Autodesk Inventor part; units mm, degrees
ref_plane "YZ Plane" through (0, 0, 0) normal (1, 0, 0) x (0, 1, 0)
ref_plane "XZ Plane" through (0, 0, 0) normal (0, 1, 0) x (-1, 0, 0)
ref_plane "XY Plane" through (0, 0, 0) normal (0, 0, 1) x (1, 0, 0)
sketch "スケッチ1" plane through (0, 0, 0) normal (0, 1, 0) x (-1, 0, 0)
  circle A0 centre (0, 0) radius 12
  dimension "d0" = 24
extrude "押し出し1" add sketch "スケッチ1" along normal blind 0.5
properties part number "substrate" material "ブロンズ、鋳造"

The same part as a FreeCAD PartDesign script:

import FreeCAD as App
import Part
import Sketcher

V = App.Vector
Q = App.Units.Quantity

doc = App.newDocument("Part")
params = doc.addObject("Spreadsheet::Sheet", "Params")
for row, (alias, value) in enumerate([
    ("sketch1_diameter", "24 mm"),
    ("pad1_length", "0.5 mm"),
], start=1):
    params.set(f"A{row}", alias)
    params.set(f"B{row}", "=" + value)
    params.setAlias(f"B{row}", alias)

body = doc.addObject("PartDesign::Body", "Body")

# Sketch on XZ plane
sketch1 = doc.addObject("Sketcher::SketchObject", "Sketch")
body.addObject(sketch1)
sketch1.AttachmentSupport = (doc.XZ_Plane, [""])
sketch1.MapMode = "FlatFace"
sketch1.addGeometry(Part.Circle(V(0, 0, 0), V(0, 0, 1), 12), False)
sketch1.addConstraint(Sketcher.Constraint("Coincident", 0, 3, -1, 1))
sketch1.addConstraint(Sketcher.Constraint("Diameter", 0, Q("24 mm")))
sketch1.setExpression("Constraints[1]", "Params.sketch1_diameter")
pad1 = doc.addObject("PartDesign::Pad", "Pad")
body.addObject(pad1)
pad1.Profile = sketch1
pad1.setExpression("Length", "Params.pad1_length")
pad1.Reversed = True

doc.recompute()
